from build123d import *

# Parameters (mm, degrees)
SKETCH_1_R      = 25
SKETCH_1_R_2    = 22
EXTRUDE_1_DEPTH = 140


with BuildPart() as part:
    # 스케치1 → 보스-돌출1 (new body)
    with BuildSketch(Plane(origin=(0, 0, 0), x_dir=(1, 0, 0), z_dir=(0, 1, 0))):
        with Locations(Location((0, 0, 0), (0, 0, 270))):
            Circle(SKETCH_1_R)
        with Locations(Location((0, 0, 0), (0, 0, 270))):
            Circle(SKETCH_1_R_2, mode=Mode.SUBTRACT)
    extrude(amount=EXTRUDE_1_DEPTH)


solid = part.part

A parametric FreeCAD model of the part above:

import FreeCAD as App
import Part
import Sketcher
from FreeCAD import Vector
Q = App.Units.Quantity

doc = App.newDocument("Part")
body = doc.addObject("PartDesign::Body", "Body")

# Sketch on XZ plane
sketch1 = body.newObject("Sketcher::SketchObject", "Sketch")
sketch1.AttachmentSupport = (doc.getObject("XZ_Plane"), [""])
sketch1.MapMode = "FlatFace"
sketch1.addGeometry(Part.Circle(Vector(0, 0, 0), Vector(0, 0, 1), 25), False)
sketch1.addGeometry(Part.Circle(Vector(0, 0, 0), Vector(0, 0, 1), 22), False)
sketch1.addConstraint(Sketcher.Constraint("Coincident", 0, 3, -1, 1))
sketch1.addConstraint(Sketcher.Constraint("Coincident", 1, 3, -1, 1))
sketch1.addConstraint(Sketcher.Constraint("Diameter", 0, Q("50 mm")))
sketch1.addConstraint(Sketcher.Constraint("Diameter", 1, Q("44 mm")))
pad1 = body.newObject("PartDesign::Pad", "Pad")
pad1.Profile = sketch1
pad1.Length = 140
pad1.Reversed = True

doc.recompute()
